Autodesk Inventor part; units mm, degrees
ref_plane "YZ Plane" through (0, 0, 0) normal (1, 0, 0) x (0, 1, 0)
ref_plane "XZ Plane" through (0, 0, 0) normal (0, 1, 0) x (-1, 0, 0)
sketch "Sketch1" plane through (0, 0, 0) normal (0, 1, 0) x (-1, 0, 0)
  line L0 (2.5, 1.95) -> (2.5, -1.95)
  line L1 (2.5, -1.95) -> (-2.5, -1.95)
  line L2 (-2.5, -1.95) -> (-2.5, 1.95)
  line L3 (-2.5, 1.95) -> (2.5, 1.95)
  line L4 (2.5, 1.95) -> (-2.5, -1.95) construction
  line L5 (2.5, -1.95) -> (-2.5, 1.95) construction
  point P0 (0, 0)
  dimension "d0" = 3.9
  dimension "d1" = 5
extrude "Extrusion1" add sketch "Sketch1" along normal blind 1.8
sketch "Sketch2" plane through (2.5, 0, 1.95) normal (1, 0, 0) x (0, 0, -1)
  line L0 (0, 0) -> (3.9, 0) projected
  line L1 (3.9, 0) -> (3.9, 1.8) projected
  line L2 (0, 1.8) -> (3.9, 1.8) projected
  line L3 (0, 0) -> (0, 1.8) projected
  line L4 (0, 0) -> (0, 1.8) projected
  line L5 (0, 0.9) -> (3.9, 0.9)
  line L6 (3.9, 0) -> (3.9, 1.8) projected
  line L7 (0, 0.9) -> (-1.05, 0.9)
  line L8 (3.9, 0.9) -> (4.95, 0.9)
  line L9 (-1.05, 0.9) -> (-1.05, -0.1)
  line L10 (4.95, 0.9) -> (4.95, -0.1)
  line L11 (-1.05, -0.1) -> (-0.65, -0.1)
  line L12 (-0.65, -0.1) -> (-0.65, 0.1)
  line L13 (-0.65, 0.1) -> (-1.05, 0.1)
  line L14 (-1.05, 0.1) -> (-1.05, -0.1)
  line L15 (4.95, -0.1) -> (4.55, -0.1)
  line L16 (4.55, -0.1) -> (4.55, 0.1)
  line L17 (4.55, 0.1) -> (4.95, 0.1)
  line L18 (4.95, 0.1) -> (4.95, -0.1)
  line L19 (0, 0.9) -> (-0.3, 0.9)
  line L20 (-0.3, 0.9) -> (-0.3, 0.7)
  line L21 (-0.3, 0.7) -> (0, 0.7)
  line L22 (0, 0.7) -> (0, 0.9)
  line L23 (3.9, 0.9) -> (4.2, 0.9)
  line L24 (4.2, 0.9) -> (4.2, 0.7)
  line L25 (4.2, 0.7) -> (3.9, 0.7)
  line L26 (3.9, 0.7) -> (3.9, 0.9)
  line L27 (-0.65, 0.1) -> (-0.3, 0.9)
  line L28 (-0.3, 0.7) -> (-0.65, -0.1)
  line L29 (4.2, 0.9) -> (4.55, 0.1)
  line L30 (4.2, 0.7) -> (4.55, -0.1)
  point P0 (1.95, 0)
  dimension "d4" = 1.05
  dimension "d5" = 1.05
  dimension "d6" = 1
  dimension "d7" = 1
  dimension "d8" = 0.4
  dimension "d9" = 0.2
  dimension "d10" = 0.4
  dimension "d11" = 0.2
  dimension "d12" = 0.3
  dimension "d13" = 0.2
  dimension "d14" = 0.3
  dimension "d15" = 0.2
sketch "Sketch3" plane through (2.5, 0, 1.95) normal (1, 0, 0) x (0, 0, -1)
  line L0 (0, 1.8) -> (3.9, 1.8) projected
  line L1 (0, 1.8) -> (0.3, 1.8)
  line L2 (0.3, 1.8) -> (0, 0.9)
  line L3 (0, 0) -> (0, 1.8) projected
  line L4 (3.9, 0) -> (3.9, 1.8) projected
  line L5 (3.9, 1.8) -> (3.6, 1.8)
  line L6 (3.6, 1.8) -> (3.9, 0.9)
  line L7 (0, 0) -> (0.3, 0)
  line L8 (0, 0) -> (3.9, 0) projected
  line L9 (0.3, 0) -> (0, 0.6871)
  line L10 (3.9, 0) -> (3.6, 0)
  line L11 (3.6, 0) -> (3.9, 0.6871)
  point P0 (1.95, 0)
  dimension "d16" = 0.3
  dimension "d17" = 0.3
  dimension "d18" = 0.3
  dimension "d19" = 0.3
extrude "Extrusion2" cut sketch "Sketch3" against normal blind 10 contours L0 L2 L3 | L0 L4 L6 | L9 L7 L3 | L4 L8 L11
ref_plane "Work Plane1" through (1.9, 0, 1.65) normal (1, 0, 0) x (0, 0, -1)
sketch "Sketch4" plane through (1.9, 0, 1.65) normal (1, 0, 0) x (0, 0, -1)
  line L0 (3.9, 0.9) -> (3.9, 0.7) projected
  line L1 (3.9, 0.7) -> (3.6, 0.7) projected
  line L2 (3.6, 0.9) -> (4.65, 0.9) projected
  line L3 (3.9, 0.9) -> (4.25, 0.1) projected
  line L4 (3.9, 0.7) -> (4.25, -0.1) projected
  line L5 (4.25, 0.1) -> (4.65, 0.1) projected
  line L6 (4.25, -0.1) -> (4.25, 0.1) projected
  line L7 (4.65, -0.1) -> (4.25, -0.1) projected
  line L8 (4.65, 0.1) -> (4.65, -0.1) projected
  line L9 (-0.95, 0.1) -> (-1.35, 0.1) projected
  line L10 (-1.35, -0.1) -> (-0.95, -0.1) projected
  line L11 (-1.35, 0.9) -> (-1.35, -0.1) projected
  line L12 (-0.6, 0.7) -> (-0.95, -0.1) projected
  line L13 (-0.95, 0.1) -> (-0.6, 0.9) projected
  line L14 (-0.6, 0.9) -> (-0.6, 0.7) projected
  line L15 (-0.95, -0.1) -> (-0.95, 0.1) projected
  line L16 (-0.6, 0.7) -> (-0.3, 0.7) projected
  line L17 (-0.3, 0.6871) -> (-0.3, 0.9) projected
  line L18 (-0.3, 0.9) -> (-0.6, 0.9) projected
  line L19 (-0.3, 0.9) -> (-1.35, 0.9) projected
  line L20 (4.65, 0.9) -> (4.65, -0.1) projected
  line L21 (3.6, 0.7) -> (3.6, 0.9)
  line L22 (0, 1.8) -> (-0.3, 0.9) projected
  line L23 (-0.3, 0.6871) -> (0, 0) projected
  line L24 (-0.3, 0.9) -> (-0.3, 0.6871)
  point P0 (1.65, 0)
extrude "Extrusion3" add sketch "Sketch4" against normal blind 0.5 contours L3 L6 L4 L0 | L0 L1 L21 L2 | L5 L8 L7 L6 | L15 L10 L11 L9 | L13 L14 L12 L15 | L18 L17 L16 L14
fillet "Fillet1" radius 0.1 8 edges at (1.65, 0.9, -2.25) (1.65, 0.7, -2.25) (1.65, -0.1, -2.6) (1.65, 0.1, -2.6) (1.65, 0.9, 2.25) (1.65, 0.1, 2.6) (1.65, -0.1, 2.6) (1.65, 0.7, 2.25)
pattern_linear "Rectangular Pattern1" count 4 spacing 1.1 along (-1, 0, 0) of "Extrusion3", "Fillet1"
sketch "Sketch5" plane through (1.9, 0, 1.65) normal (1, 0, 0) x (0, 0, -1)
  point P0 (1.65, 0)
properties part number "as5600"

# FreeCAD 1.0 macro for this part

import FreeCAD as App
import Part
import Sketcher

V = App.Vector
Q = App.Units.Quantity


def edges_at(feature, points):
    """Names of the edges that pass closest to the given points."""
    edges = feature.Shape.Edges
    near = lambda p: min(range(len(edges)), key=lambda i: edges[i].distToShape(Part.Vertex(*p))[0])
    return sorted({f"Edge{near(p) + 1}" for p in points})


def add_polygon(sketch, points):
    """Adds a closed chain of lines whose ends are joined by coincident constraints."""
    first, n = sketch.GeometryCount, len(points)
    for a, b in zip(points, points[1:] + points[:1]):
        sketch.addGeometry(Part.LineSegment(App.Vector(*a, 0), App.Vector(*b, 0)), False)
    for i in range(n):
        sketch.addConstraint(Sketcher.Constraint("Coincident", first + i, 2, first + (i + 1) % n, 1))

doc = App.newDocument("Part")
body = doc.addObject("PartDesign::Body", "Body")

# Sketch on XZ plane
sketch1 = body.newObject("Sketcher::SketchObject", "Sketch")
sketch1.AttachmentSupport = (doc.getObject("XZ_Plane"), [""])
sketch1.MapMode = "FlatFace"
add_polygon(sketch1, [(-2.5, -1.95), (-2.5, 1.95), (2.5, 1.95), (2.5, -1.95)])  # lines 0-3
sketch1.addConstraint([
    Sketcher.Constraint("Vertical", 0),
    Sketcher.Constraint("Horizontal", 1),
    Sketcher.Constraint("Vertical", 2),
    Sketcher.Constraint("Horizontal", 3),
    Sketcher.Constraint("Symmetric", 0, 2, 2, 2, -1, 1),
    Sketcher.Constraint("DistanceX", 1, 1, 1, 2, Q("5 mm")),
    Sketcher.Constraint("DistanceY", 0, 1, 0, 2, Q("3.9 mm")),
])
pad1 = body.newObject("PartDesign::Pad", "Pad")
pad1.Profile = sketch1
pad1.Length = 1.8
pad1.Reversed = True

# Sketch on YZ plane
sketch2 = body.newObject("Sketcher::SketchObject", "Sketch001")
sketch2.AttachmentSupport = (doc.getObject("YZ_Plane"), [""])
sketch2.MapMode = "FlatFace"
sketch2.AttachmentOffset = App.Placement(V(0, 0, 2.5), App.Rotation())
add_polygon(sketch2, [(1.8, 1.65), (1.8, 1.95), (0.9, 1.95)])  # lines 0-2
add_polygon(sketch2, [(1.8, -1.95), (1.8, -1.65), (0.9, -1.95)])  # lines 3-5
add_polygon(sketch2, [(0, 1.65), (0.6871, 1.95), (0, 1.95)])  # lines 6-8
add_polygon(sketch2, [(0, -1.95), (0.6871, -1.95), (0, -1.65)])  # lines 9-11
sketch2.addConstraint([
    Sketcher.Constraint("Vertical", 0),
    Sketcher.Constraint("Horizontal", 1),
    Sketcher.Constraint("Vertical", 3),
    Sketcher.Constraint("Horizontal", 5),
    Sketcher.Constraint("Horizontal", 7),
    Sketcher.Constraint("Vertical", 8),
    Sketcher.Constraint("Horizontal", 9),
    Sketcher.Constraint("Vertical", 11),
    Sketcher.Constraint("Symmetric", 8, 2, 10, 2, -1, 1),
    Sketcher.Constraint("Symmetric", 2, 2, 3, 2, -1),
    Sketcher.Constraint("Symmetric", 1, 2, 4, 2, -1),
    Sketcher.Constraint("Symmetric", 6, 2, 9, 2, -1),
    Sketcher.Constraint("PointOnObject", 7, 2, -2),
    Sketcher.Constraint("Horizontal", 1, 2, 6, 2),
    Sketcher.Constraint("Horizontal", 2, 2, 8, 2),
    Sketcher.Constraint("DistanceY", 0, 1, 0, 2, Q("0.3 mm")),
    Sketcher.Constraint("DistanceX", 1, 2, 1, 1, Q("0.9 mm")),
    Sketcher.Constraint("DistanceX", -1, 1, 0, 2, Q("1.8 mm")),
    Sketcher.Constraint("DistanceY", 3, 2, 2, 2, Q("3.3 mm")),
    Sketcher.Constraint("DistanceX", 7, 2, 7, 1, Q("0.687 mm")),
])
pocket1 = body.newObject("PartDesign::Pocket", "Pocket")
pocket1.Profile = sketch2
pocket1.Length = 10

# Sketch on YZ plane
sketch3 = body.newObject("Sketcher::SketchObject", "Sketch002")
sketch3.AttachmentSupport = (doc.getObject("YZ_Plane"), [""])
sketch3.MapMode = "FlatFace"
sketch3.AttachmentOffset = App.Placement(V(0, 0, 1.9), App.Rotation())
add_polygon(sketch3, [(0.1, -2.6), (0.9, -2.25), (0.9, -1.95), (0.7, -1.95), (0.7, -2.25), (-0.1, -2.6), (-0.1, -3), (0.1, -3)])  # lines 0-7
add_polygon(sketch3, [(-0.1, 3), (-0.1, 2.6), (0.7, 2.25), (0.7, 1.95), (0.9, 1.95), (0.9, 2.25), (0.1, 2.6), (0.1, 3)])  # lines 8-15
sketch3.addConstraint([
    Sketcher.Constraint("Vertical", 1),
    Sketcher.Constraint("Horizontal", 2),
    Sketcher.Constraint("Vertical", 3),
    Sketcher.Constraint("Vertical", 5),
    Sketcher.Constraint("Horizontal", 6),
    Sketcher.Constraint("Vertical", 7),
    Sketcher.Constraint("Vertical", 8),
    Sketcher.Constraint("Vertical", 10),
    Sketcher.Constraint("Horizontal", 11),
    Sketcher.Constraint("Vertical", 12),
    Sketcher.Constraint("Vertical", 14),
    Sketcher.Constraint("Horizontal", 15),
    Sketcher.Constraint("Symmetric", 7, 2, 8, 2, -1, 1),
    Sketcher.Constraint("Symmetric", 4, 2, 13, 2, -1, 1),
    Sketcher.Constraint("Symmetric", 4, 2, 7, 2, -2),
    Sketcher.Constraint("Symmetric", 3, 2, 9, 2, -1),
    Sketcher.Constraint("Symmetric", 1, 2, 11, 2, -1),
    Sketcher.Constraint("Parallel", 0, 4),
    Sketcher.Constraint("Parallel", 9, 13),
    Sketcher.Constraint("Horizontal", 0, 2, 3, 2),
    Sketcher.Constraint("Equal", 7, 8),
    Sketcher.Constraint("DistanceX", 2, 2, 2, 1, Q("0.2 mm")),
    Sketcher.Constraint("DistanceY", 1, 1, 1, 2, Q("0.3 mm")),
    Sketcher.Constraint("DistanceY", 5, 2, 5, 1, Q("0.4 mm")),
    Sketcher.Constraint("DistanceY", 5, 2, -1, 1, Q("3 mm")),
    Sketcher.Constraint("DistanceX", 4, 2, 0, 2, Q("1 mm")),
    Sketcher.Constraint("Angle", 0, Q("23.6294 deg")),
])
pad2 = body.newObject("PartDesign::Pad", "Pad001")
pad2.Profile = sketch3
pad2.Length = 0.5
pad2.Reversed = True
doc.recompute()

fillet = body.newObject("PartDesign::Fillet", "Fillet")
fillet.Base = (pad2, edges_at(pad2, [
    (1.65, 0.9, -2.25),
    (1.65, 0.7, -2.25),
    (1.65, -0.1, -2.6),
    (1.65, 0.1, -2.6),
    (1.65, 0.9, 2.25),
    (1.65, 0.1, 2.6),
    (1.65, -0.1, 2.6),
    (1.65, 0.7, 2.25),
]))
fillet.Radius = 0.1
doc.recompute()

linearpattern = body.newObject("PartDesign::LinearPattern", "LinearPattern")
linearpattern.Originals = [pad2, fillet]
linearpattern.Direction = (doc.getObject("X_Axis"), [""])
linearpattern.Mode = "offset"
linearpattern.Offset = 1.1
linearpattern.Occurrences = 4
linearpattern.Reversed = True
body.Tip = linearpattern

doc.recompute()
